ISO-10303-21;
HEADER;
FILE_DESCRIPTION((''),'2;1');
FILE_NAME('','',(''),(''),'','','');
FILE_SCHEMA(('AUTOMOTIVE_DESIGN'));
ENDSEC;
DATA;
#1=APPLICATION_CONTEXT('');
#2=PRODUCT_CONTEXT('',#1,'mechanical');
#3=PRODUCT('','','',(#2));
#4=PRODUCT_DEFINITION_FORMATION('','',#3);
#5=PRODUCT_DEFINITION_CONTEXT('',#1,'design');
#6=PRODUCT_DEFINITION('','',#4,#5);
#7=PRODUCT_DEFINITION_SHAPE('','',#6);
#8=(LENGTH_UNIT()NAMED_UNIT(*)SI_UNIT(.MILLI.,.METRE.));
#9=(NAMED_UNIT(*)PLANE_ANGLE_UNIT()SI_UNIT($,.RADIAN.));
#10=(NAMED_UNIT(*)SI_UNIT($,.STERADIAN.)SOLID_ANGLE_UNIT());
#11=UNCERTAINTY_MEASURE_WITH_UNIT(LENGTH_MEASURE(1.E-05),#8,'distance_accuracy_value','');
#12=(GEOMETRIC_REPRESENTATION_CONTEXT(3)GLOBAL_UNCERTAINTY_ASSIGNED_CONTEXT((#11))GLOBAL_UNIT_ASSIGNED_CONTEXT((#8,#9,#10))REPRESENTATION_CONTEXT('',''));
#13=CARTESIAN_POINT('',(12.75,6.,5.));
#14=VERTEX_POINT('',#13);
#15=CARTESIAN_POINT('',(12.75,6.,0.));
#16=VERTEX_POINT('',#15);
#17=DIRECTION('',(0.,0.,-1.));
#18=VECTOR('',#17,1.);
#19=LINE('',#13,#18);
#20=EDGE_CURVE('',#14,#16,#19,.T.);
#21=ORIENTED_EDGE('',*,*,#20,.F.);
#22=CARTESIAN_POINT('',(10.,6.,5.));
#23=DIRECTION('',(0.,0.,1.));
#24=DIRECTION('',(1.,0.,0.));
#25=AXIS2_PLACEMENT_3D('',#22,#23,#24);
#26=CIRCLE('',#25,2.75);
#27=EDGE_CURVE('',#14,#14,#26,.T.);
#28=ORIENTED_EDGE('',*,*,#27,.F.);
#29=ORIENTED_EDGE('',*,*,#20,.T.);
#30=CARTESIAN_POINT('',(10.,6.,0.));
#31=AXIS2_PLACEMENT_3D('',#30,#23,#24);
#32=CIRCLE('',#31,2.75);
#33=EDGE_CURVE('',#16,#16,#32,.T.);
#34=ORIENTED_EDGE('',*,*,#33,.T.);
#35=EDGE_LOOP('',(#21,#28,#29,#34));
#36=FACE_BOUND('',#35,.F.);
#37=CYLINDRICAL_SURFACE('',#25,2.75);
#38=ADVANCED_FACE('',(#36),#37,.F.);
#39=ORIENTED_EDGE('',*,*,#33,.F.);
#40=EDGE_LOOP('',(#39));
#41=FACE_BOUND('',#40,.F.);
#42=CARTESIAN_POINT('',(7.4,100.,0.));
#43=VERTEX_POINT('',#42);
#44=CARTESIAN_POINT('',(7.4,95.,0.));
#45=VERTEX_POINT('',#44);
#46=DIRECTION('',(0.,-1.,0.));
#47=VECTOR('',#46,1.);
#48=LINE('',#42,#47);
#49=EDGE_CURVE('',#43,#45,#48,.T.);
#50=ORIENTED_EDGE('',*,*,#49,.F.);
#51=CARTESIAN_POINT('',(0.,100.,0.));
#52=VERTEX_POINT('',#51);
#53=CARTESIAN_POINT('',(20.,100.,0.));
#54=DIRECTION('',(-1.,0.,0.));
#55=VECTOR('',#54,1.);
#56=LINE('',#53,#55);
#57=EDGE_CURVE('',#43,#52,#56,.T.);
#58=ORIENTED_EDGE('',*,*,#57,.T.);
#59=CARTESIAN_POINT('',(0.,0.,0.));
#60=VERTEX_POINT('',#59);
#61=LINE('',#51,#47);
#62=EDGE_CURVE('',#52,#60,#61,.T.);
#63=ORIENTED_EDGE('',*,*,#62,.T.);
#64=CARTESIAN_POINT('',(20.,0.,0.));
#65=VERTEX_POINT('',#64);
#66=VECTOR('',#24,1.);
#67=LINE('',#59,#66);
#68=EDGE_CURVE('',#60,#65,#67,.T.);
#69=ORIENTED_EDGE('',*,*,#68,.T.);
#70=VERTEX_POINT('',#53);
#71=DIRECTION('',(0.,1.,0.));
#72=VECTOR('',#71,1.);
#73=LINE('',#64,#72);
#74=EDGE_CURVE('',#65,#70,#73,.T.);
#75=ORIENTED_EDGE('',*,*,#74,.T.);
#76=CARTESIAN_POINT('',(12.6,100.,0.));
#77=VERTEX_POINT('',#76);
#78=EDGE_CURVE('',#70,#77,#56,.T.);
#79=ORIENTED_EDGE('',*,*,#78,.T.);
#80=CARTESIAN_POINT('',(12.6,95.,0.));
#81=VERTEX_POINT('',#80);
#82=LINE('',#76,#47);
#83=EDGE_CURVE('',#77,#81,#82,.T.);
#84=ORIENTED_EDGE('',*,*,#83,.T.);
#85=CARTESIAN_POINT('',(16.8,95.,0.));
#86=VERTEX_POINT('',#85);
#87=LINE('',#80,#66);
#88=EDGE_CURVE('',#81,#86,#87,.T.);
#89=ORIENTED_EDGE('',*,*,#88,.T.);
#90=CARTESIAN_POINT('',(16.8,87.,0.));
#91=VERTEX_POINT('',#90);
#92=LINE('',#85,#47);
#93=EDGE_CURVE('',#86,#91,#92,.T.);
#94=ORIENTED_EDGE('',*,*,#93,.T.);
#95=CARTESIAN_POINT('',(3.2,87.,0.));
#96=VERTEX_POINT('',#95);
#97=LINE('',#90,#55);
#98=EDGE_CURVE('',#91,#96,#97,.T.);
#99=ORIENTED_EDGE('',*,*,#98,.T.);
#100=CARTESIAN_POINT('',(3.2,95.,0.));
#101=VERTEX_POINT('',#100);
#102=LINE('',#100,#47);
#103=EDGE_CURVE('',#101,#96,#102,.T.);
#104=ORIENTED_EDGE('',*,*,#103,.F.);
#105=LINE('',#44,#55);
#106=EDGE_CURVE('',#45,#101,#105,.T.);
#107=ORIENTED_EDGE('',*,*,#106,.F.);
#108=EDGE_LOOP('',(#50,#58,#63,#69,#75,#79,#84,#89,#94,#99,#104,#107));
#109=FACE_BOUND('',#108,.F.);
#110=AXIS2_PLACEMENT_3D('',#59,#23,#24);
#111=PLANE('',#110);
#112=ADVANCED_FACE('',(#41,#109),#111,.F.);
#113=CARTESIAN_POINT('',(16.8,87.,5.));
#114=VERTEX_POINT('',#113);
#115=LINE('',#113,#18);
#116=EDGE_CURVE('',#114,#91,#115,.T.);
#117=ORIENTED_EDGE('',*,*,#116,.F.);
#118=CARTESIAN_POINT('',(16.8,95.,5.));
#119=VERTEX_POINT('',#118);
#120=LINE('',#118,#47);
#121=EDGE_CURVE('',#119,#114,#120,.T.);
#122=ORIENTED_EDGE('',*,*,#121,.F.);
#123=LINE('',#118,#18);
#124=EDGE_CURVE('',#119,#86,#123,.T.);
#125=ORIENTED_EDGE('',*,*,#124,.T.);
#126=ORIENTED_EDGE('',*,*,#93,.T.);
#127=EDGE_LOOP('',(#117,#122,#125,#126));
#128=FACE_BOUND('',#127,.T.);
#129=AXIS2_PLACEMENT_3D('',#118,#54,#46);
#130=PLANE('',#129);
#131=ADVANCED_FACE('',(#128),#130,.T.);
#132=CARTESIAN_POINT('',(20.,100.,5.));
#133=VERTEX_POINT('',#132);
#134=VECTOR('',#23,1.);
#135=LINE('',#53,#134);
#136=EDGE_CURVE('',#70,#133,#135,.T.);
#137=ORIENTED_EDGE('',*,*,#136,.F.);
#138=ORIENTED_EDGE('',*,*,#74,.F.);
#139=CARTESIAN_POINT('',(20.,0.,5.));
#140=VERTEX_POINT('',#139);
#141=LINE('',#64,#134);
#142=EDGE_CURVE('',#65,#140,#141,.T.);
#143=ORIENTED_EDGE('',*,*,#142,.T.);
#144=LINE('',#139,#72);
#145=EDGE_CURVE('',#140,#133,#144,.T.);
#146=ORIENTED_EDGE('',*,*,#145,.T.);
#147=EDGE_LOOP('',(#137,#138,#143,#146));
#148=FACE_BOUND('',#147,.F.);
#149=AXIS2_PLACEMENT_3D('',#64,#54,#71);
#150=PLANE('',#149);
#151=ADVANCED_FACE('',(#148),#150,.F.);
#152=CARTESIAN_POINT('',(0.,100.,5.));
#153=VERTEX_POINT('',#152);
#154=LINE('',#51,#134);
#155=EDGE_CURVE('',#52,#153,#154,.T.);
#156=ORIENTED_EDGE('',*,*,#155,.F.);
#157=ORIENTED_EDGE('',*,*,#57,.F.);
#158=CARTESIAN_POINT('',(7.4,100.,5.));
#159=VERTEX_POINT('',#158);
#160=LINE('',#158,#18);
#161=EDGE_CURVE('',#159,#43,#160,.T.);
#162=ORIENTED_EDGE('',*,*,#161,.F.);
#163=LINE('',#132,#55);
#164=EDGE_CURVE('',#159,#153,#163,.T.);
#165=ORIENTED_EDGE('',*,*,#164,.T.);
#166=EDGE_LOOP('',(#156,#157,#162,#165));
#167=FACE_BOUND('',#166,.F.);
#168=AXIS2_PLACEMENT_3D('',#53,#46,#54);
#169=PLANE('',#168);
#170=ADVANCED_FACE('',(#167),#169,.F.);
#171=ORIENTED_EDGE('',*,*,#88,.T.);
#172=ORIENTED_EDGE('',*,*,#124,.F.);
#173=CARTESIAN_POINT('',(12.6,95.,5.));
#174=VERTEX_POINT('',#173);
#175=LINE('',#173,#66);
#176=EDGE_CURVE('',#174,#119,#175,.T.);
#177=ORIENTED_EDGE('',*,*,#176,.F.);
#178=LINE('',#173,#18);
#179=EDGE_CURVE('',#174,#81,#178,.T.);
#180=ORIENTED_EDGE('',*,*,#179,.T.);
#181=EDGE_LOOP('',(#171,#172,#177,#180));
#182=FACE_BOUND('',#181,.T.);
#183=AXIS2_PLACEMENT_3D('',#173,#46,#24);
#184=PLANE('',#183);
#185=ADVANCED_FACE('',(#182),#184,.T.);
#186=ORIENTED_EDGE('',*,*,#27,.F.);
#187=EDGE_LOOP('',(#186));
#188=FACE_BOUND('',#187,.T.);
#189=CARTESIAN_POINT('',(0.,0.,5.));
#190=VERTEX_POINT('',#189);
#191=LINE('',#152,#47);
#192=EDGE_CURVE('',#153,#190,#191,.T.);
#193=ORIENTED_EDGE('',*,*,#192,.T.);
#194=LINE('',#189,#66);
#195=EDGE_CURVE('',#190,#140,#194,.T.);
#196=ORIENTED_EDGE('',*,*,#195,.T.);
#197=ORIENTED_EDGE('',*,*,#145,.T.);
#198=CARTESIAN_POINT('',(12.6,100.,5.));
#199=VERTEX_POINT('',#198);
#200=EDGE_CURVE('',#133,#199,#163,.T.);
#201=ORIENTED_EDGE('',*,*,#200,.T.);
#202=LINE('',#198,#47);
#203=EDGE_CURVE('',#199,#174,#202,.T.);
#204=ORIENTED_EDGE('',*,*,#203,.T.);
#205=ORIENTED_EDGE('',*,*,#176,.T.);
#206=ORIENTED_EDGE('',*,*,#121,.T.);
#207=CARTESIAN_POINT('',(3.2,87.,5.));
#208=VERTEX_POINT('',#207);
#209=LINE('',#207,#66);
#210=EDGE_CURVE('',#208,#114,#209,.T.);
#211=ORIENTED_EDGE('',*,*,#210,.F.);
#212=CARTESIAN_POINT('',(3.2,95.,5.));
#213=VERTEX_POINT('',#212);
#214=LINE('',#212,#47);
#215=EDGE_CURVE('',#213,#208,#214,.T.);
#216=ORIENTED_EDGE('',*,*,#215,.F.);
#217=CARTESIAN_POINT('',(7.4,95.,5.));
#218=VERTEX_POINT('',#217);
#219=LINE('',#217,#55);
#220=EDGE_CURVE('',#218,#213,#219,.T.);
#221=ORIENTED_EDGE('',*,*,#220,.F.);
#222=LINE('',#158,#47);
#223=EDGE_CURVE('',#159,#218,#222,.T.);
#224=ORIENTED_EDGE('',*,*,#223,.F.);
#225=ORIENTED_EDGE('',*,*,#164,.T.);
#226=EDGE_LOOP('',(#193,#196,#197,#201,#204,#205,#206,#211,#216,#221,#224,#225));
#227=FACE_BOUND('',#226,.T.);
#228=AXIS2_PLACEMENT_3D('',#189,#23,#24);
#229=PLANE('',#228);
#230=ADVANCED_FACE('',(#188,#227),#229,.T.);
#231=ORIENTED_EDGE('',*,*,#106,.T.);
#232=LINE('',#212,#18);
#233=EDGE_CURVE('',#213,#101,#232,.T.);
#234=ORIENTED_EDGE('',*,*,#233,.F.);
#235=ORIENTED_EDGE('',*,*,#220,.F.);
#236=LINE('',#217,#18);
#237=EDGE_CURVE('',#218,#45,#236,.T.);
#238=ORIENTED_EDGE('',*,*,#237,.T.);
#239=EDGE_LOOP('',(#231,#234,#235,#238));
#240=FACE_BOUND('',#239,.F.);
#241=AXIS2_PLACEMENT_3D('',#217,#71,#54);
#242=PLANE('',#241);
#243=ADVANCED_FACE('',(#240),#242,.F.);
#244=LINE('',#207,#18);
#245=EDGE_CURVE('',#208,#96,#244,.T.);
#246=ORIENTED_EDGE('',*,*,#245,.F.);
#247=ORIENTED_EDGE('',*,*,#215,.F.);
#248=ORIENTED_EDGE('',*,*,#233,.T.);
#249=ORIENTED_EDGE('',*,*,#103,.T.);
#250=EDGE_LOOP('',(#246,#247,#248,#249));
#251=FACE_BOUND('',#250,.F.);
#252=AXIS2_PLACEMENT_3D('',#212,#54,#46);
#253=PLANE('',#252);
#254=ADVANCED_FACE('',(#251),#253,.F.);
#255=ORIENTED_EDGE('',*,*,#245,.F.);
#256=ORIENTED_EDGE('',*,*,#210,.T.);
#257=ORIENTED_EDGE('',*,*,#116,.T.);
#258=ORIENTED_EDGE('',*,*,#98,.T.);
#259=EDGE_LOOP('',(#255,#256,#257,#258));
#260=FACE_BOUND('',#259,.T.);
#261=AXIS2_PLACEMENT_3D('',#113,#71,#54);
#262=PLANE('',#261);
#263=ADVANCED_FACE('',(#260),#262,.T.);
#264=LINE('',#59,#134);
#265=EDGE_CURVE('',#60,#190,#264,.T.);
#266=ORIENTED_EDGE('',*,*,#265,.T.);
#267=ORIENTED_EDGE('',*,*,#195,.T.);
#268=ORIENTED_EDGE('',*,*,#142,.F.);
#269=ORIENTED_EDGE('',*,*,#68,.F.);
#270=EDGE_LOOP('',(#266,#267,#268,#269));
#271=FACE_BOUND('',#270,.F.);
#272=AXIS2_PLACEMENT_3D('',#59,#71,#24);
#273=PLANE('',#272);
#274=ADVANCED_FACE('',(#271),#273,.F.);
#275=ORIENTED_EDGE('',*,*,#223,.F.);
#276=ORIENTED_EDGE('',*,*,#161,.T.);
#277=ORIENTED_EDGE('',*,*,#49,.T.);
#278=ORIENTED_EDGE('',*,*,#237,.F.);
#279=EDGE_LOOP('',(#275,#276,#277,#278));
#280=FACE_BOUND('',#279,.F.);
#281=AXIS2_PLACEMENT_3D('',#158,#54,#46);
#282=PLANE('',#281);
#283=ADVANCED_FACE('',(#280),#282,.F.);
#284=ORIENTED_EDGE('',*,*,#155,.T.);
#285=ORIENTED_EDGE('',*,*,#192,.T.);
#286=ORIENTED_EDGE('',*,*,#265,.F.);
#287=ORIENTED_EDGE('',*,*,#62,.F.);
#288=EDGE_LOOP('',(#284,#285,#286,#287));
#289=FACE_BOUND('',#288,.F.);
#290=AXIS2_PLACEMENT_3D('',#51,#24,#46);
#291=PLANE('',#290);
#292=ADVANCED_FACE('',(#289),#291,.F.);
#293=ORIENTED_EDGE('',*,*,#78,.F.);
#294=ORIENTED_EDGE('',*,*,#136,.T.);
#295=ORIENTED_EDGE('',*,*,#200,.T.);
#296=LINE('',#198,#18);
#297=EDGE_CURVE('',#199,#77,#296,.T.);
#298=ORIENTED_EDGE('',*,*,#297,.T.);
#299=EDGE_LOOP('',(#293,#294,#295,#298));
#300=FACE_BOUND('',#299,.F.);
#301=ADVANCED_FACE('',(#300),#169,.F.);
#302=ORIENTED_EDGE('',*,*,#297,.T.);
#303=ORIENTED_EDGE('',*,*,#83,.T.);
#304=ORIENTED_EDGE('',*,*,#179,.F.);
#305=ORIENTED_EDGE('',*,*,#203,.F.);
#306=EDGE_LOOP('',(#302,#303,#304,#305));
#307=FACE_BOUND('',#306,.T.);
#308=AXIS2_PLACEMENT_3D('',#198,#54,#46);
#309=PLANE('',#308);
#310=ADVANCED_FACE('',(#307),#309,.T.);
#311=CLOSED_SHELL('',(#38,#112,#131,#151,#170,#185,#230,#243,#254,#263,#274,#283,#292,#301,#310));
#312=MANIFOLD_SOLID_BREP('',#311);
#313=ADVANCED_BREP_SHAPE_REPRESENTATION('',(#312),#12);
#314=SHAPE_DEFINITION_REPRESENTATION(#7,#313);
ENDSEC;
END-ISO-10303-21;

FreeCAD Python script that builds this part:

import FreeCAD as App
import Part
import Sketcher
from FreeCAD import Vector
Q = App.Units.Quantity


def add_polygon(sketch, points):
    """Adds a closed chain of lines whose ends are joined by coincident constraints."""
    first, n = sketch.GeometryCount, len(points)
    for a, b in zip(points, points[1:] + points[:1]):
        sketch.addGeometry(Part.LineSegment(App.Vector(*a, 0), App.Vector(*b, 0)), False)
    for i in range(n):
        sketch.addConstraint(Sketcher.Constraint("Coincident", first + i, 2, first + (i + 1) % n, 1))

doc = App.newDocument("Part")
body = doc.addObject("PartDesign::Body", "Body")

# Sketch on XY plane
sketch1 = doc.addObject("Sketcher::SketchObject", "Sketch")
body.addObject(sketch1)
sketch1.AttachmentSupport = (doc.XY_Plane, [""])
sketch1.MapMode = "FlatFace"
add_polygon(sketch1, [(0, 100), (0, 0), (20, 0), (20, 100)])  # lines 0-3
sketch1.addConstraint([
    Sketcher.Constraint("Vertical", 0),
    Sketcher.Constraint("Horizontal", 1),
    Sketcher.Constraint("Vertical", 2),
    Sketcher.Constraint("Horizontal", 3),
    Sketcher.Constraint("Coincident", 0, 2, -1, 1),
    Sketcher.Constraint("DistanceX", 1, 1, 1, 2, Q("20 mm")),
    Sketcher.Constraint("DistanceY", 0, 2, 0, 1, Q("100 mm")),
])
pad1 = doc.addObject("PartDesign::Pad", "Pad")
body.addObject(pad1)
pad1.Profile = sketch1
pad1.Length = 5

# Sketch on XY plane
sketch2 = doc.addObject("Sketcher::SketchObject", "Sketch001")
body.addObject(sketch2)
sketch2.AttachmentSupport = (doc.XY_Plane, [""])
sketch2.MapMode = "FlatFace"
sketch2.AttachmentOffset = App.Placement(Vector(0, 0, 5), App.Rotation())
add_polygon(sketch2, [(12.6, 95), (12.6, 100), (7.4, 100), (7.4, 95), (3.2, 95), (3.2, 87), (16.8, 87), (16.8, 95)])  # lines 0-7
sketch2.addGeometry(Part.Circle(Vector(10, 6, 0), Vector(0, 0, 1), 2.8), False)  # 8
sketch2.addConstraint([
    Sketcher.Constraint("Vertical", 0),
    Sketcher.Constraint("Horizontal", 1),
    Sketcher.Constraint("Vertical", 2),
    Sketcher.Constraint("Horizontal", 3),
    Sketcher.Constraint("Vertical", 4),
    Sketcher.Constraint("Horizontal", 5),
    Sketcher.Constraint("Vertical", 6),
    Sketcher.Constraint("Horizontal", 7),
    Sketcher.Constraint("Horizontal", 3, 2, 6, 2),
    Sketcher.Constraint("Equal", 3, 7),
    Sketcher.Constraint("Diameter", 8, Q("5.5 mm")),
    Sketcher.Constraint("DistanceY", 0, 1, 0, 2, Q("5 mm")),
    Sketcher.Constraint("DistanceY", 4, 2, 4, 1, Q("8 mm")),
    Sketcher.Constraint("DistanceX", 3, 2, 3, 1, Q("4.2 mm")),
    Sketcher.Constraint("DistanceX", -1, 1, 8, 3, Q("10 mm")),
    Sketcher.Constraint("DistanceY", -1, 1, 8, 3, Q("6 mm")),
    Sketcher.Constraint("DistanceX", 8, 3, 0, 2, Q("2.6 mm")),
    Sketcher.Constraint("DistanceX", 1, 2, 8, 3, Q("2.6 mm")),
    Sketcher.Constraint("DistanceY", -1, 1, 0, 2, Q("100 mm")),
])
pocket1 = doc.addObject("PartDesign::Pocket", "Pocket")
body.addObject(pocket1)
pocket1.Profile = sketch2
pocket1.Length = 5

doc.recompute()
